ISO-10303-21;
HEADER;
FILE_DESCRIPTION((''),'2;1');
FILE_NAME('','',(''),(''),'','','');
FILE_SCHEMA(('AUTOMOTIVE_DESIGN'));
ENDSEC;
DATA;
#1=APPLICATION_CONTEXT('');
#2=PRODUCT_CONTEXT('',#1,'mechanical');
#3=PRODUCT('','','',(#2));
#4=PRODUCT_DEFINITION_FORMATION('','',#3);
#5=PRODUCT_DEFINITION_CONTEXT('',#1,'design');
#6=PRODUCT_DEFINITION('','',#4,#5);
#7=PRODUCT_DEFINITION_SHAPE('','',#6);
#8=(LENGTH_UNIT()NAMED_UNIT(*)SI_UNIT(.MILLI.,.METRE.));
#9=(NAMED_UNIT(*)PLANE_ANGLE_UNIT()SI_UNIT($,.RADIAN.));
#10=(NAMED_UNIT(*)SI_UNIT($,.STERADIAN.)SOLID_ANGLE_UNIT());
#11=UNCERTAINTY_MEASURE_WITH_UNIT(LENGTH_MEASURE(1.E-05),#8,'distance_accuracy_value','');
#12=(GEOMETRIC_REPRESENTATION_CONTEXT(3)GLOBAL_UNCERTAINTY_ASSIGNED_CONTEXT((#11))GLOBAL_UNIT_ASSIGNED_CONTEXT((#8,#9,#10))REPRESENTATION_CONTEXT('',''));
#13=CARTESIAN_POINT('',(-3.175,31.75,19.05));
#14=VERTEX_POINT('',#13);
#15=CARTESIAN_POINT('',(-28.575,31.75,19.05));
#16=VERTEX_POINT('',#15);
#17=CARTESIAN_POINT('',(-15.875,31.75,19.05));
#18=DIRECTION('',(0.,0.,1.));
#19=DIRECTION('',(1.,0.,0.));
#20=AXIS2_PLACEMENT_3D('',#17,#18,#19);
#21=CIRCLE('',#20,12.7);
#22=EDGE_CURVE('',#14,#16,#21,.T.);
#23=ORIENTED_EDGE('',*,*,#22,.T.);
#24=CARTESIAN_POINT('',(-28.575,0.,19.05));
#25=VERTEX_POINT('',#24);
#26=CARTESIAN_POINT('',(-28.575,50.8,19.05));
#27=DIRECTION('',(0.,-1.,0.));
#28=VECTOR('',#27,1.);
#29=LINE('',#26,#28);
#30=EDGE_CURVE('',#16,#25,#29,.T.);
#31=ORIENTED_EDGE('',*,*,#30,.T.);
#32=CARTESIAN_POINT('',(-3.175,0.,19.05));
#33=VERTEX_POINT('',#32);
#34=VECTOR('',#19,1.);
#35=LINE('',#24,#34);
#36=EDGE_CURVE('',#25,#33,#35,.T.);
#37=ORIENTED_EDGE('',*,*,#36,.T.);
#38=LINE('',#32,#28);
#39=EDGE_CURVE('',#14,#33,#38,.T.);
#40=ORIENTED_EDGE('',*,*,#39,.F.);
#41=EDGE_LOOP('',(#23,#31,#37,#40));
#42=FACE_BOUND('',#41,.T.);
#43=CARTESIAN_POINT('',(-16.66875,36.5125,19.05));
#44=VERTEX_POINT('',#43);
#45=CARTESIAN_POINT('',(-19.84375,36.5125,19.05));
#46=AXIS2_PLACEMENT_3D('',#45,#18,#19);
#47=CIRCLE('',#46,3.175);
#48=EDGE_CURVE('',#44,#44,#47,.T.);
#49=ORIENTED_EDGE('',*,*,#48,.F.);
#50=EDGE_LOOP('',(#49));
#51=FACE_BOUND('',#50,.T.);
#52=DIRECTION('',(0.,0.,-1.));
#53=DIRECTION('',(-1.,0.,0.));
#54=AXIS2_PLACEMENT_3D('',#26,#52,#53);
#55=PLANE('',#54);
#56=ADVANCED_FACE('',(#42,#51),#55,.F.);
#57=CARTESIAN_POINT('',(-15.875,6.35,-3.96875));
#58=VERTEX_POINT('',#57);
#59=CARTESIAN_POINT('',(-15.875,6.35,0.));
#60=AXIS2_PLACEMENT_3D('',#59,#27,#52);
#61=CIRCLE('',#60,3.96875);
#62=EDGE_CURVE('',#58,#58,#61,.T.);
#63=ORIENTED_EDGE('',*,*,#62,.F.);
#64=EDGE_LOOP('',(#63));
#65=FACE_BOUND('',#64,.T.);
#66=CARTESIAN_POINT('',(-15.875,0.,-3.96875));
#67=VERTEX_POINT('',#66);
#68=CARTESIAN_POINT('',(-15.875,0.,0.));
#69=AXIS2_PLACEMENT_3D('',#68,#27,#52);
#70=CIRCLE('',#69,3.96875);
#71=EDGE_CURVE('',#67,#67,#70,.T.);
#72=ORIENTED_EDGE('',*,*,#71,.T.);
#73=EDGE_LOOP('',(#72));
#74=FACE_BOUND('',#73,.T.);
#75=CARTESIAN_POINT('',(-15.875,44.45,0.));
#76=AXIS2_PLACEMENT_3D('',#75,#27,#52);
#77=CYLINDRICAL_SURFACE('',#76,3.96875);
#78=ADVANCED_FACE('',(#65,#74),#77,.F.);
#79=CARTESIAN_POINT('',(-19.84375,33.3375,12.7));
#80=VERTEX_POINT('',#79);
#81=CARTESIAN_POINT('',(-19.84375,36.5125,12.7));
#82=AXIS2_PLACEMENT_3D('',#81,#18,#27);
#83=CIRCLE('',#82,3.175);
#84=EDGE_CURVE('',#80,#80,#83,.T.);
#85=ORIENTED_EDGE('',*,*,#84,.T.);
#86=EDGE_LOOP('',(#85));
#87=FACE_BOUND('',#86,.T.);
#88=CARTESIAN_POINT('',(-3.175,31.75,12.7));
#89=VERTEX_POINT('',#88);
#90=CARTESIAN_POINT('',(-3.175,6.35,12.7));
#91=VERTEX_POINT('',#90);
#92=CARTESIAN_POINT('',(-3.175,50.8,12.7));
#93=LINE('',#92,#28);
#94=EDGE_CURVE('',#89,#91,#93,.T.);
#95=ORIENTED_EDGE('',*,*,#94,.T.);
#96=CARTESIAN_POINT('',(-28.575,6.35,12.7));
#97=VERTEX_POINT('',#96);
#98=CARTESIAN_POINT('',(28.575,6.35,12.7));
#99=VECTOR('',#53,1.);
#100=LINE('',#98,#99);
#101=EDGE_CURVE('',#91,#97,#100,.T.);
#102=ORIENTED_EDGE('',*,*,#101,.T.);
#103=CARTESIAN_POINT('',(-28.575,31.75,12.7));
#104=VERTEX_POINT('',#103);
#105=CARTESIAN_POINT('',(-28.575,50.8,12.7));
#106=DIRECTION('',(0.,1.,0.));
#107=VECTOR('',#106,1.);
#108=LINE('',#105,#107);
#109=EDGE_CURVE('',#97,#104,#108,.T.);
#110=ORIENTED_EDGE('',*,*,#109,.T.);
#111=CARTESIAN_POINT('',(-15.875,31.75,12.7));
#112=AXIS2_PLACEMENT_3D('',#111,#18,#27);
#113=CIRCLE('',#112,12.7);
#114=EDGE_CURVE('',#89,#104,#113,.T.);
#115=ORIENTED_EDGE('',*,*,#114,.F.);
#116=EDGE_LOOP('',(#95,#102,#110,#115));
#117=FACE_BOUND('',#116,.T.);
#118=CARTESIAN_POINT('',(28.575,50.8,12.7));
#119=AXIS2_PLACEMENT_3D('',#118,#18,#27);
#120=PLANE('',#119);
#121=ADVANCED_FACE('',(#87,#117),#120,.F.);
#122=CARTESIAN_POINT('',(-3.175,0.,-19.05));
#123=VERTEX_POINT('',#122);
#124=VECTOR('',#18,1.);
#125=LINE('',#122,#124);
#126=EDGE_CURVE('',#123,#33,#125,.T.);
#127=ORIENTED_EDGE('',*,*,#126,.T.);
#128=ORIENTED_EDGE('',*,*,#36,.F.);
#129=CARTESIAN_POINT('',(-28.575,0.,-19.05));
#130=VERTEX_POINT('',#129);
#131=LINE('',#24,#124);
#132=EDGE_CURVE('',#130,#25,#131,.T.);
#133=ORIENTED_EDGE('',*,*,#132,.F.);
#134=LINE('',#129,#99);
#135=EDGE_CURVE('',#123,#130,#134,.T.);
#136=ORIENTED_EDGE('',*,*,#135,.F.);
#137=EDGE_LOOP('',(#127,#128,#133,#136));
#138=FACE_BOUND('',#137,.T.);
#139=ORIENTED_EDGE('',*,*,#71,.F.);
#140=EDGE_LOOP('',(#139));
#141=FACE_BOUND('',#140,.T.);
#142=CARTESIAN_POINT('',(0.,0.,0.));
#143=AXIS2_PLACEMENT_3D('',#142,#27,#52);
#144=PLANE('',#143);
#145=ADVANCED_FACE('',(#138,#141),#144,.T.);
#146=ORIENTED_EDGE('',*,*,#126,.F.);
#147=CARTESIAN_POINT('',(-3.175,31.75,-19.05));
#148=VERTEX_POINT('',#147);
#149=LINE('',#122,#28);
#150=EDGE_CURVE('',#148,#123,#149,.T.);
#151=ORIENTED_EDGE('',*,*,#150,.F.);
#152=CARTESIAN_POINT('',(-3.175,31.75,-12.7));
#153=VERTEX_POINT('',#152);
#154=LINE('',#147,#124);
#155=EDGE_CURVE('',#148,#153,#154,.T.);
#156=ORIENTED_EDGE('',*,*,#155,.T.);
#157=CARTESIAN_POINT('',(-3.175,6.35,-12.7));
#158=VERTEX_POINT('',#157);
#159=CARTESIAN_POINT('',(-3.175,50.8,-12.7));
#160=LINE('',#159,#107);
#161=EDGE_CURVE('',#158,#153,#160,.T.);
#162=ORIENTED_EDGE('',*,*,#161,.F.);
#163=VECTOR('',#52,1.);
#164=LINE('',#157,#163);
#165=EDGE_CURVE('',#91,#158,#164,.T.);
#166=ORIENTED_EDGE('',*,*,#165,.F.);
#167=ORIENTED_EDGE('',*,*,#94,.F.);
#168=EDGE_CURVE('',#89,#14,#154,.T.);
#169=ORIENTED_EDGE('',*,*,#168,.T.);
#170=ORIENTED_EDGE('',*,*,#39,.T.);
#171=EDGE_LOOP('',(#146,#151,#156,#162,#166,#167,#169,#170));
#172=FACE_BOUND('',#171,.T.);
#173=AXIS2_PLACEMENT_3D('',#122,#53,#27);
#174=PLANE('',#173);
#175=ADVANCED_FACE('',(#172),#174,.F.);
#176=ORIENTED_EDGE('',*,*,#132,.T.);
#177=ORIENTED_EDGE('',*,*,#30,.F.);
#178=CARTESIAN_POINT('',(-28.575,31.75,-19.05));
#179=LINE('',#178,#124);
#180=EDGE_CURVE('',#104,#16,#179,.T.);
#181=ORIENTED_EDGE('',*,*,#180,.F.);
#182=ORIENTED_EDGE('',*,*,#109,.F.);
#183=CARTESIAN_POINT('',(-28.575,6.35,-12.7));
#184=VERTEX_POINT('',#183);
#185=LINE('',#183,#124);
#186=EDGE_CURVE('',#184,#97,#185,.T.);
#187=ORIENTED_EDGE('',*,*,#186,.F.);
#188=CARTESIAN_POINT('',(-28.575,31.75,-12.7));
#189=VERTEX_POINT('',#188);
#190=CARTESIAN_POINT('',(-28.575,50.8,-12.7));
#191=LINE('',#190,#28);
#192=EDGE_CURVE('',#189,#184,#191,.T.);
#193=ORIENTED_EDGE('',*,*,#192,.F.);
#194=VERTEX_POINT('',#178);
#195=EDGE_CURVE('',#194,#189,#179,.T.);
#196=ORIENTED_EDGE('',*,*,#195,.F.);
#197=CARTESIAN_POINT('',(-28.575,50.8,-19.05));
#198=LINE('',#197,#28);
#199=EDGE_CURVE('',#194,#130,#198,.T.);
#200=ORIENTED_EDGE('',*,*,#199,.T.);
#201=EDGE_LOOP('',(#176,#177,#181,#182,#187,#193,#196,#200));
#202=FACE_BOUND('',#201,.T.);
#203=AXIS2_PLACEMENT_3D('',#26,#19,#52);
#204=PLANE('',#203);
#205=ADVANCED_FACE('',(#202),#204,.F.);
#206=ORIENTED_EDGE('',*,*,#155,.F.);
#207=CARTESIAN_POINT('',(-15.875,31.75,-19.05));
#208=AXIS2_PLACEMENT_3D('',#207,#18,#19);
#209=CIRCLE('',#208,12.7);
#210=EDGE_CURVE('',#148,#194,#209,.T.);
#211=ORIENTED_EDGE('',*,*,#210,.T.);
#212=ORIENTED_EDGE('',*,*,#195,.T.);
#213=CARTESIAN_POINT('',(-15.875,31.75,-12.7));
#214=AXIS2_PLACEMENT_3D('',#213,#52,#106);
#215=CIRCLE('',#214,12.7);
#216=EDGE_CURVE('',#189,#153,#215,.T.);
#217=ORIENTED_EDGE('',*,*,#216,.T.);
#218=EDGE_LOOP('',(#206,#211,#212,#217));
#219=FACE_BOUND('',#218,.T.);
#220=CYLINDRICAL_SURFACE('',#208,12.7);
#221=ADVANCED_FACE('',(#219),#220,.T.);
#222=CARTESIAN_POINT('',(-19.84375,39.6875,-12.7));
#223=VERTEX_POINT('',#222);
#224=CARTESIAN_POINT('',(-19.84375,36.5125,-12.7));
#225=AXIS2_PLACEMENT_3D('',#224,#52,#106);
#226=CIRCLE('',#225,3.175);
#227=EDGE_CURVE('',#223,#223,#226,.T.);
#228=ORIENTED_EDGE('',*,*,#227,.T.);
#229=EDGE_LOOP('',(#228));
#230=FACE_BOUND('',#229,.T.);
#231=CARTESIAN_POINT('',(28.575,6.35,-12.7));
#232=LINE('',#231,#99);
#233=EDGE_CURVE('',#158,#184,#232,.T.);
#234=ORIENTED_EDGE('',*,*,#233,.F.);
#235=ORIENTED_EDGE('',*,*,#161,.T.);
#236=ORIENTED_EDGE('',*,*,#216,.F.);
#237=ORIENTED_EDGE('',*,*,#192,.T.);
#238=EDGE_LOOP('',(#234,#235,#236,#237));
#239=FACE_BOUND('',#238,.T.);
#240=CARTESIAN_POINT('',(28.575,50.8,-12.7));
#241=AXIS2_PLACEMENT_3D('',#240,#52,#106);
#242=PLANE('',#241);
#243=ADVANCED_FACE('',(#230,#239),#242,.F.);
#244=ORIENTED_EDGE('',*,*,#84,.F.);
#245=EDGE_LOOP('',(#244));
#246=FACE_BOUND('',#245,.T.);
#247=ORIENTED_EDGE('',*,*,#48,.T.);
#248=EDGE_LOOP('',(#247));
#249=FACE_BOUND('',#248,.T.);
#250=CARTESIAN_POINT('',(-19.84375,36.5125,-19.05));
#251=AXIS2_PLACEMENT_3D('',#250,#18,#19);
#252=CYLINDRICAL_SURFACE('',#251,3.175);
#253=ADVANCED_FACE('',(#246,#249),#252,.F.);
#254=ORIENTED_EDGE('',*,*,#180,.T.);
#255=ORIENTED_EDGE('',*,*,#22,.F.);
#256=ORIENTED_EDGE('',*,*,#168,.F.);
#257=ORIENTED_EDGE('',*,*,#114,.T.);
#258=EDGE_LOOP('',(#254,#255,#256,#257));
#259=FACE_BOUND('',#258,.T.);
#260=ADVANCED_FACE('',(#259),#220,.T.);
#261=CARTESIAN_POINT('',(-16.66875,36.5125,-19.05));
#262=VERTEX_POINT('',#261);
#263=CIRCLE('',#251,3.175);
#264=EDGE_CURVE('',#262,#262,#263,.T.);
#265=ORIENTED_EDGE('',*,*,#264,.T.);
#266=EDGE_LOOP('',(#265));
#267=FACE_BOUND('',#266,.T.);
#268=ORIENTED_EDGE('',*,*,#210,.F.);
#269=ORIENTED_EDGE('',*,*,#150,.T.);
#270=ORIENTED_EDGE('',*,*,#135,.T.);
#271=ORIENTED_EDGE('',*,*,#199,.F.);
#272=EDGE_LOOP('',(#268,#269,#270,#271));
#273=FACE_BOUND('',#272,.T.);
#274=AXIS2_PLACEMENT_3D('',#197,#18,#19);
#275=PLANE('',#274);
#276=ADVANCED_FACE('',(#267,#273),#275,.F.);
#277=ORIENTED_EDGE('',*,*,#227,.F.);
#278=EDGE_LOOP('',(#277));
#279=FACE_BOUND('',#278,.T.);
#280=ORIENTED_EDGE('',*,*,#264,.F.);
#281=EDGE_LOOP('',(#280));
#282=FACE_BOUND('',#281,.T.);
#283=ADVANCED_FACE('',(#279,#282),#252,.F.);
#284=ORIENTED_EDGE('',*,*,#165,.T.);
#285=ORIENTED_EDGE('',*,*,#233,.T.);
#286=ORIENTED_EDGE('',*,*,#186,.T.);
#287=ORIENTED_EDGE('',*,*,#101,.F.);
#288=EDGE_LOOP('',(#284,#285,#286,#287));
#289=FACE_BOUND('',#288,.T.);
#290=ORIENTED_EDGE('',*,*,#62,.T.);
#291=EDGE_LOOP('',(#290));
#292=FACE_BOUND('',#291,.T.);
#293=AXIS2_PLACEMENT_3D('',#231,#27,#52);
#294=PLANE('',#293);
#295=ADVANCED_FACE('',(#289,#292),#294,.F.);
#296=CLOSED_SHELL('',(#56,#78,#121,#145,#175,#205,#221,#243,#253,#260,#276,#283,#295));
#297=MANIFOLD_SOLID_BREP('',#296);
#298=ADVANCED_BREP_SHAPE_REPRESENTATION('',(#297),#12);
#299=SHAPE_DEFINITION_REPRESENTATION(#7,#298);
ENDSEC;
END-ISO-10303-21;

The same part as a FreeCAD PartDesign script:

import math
import FreeCAD as App
import Part
import Sketcher

V = App.Vector
Q = App.Units.Quantity

doc = App.newDocument("Part")
body = doc.addObject("PartDesign::Body", "Body")

# Sketch on XZ plane
sketch1 = body.newObject("Sketcher::SketchObject", "Sketch")
sketch1.AttachmentSupport = (doc.getObject("XZ_Plane"), [""])
sketch1.MapMode = "FlatFace"
sketch1.addGeometry([
    Part.LineSegment(V(-29, -19, 0), V(-29, 19, 0)),
    Part.LineSegment(V(-29, 19, 0), V(29, 19, 0)),
    Part.LineSegment(V(29, 19, 0), V(29, -19, 0)),
    Part.LineSegment(V(29, -19, 0), V(-29, -19, 0)),
], False)
sketch1.addConstraint([
    Sketcher.Constraint("Coincident", 0, 2, 1, 1),
    Sketcher.Constraint("Coincident", 1, 2, 2, 1),
    Sketcher.Constraint("Coincident", 2, 2, 3, 1),
    Sketcher.Constraint("Coincident", 3, 2, 0, 1),
    Sketcher.Constraint("Vertical", 0),
    Sketcher.Constraint("Horizontal", 1),
    Sketcher.Constraint("Vertical", 2),
    Sketcher.Constraint("Horizontal", 3),
    Sketcher.Constraint("Symmetric", 0, 2, 2, 2, -1, 1),
    Sketcher.Constraint("DistanceY", 0, 1, 0, 2, Q("1.5 in")),
    Sketcher.Constraint("DistanceX", 1, 1, 1, 2, Q("2.25 in")),
])
pad1 = body.newObject("PartDesign::Pad", "Pad")
pad1.Profile = sketch1
pad1.Length = Q("2 in")
pad1.Reversed = True

# Sketch on YZ plane
sketch2 = body.newObject("Sketcher::SketchObject", "Sketch001")
sketch2.AttachmentSupport = (doc.getObject("YZ_Plane"), [""])
sketch2.MapMode = "FlatFace"
sketch2.AttachmentOffset = App.Placement(V(0, 0, -1.125 * 25.4), App.Rotation())
sketch2.addGeometry([
    Part.LineSegment(V(51, -13, 0), V(6, -13, 0)),
    Part.LineSegment(V(6, -13, 0), V(6, 13, 0)),
    Part.LineSegment(V(6, 13, 0), V(51, 13, 0)),
    Part.LineSegment(V(51, 13, 0), V(51, -13, 0)),
], False)
sketch2.addConstraint([
    Sketcher.Constraint("Coincident", 0, 2, 1, 1),
    Sketcher.Constraint("Coincident", 1, 2, 2, 1),
    Sketcher.Constraint("Coincident", 2, 2, 3, 1),
    Sketcher.Constraint("Coincident", 3, 2, 0, 1),
    Sketcher.Constraint("Horizontal", 0),
    Sketcher.Constraint("Vertical", 1),
    Sketcher.Constraint("Horizontal", 2),
    Sketcher.Constraint("Vertical", 3),
    Sketcher.Constraint("DistanceY", 1, 1, 1, 2, Q("1 in")),
    Sketcher.Constraint("DistanceX", -1, 1, 2, 2, Q("2 in")),
    Sketcher.Constraint("DistanceX", 0, 2, 0, 1, Q("1.75 in")),
    Sketcher.Constraint("DistanceY", 0, 2, -1, 1, Q("0.5 in")),
])
pocket1 = body.newObject("PartDesign::Pocket", "Pocket")
pocket1.Profile = sketch2
pocket1.Type = "ThroughAll"
pocket1.Reversed = True

# Sketch on XY plane
sketch3 = body.newObject("Sketcher::SketchObject", "Sketch002")
sketch3.AttachmentSupport = (doc.getObject("XY_Plane"), [""])
sketch3.MapMode = "FlatFace"
sketch3.AttachmentOffset = App.Placement(V(0, 0, 0.75 * 25.4), App.Rotation())
sketch3.addGeometry([
    Part.LineSegment(V(-3.2, 0, 0), V(28.6, 0, 0)),  # 0
    Part.LineSegment(V(28.6, 0, 0), V(28.6, 50.8, 0)),  # 1
    Part.LineSegment(V(28.6, 50.8, 0), V(-28.6, 50.8, 0)),  # 2
    Part.LineSegment(V(-28.6, 50.8, 0), V(-28.6, 31.8, 0)),  # 3
    Part.ArcOfCircle(Part.Circle(V(-15.9, 31.8, 0), V(0, 0, 1), 12.7), math.radians(0), math.radians(180)),  # 4
    Part.LineSegment(V(-3.2, 31.8, 0), V(-3.2, 0, 0)),  # 5
    Part.Circle(V(-19.8, 36.5, 0), V(0, 0, 1), 3.2),  # 6
], False)
sketch3.addConstraint([
    Sketcher.Constraint("Coincident", 0, 2, 1, 1),
    Sketcher.Constraint("Coincident", 1, 2, 2, 1),
    Sketcher.Constraint("Coincident", 2, 2, 3, 1),
    Sketcher.Constraint("Tangent", 3, 2, 4, 2),
    Sketcher.Constraint("Tangent", 4, 1, 5, 1),
    Sketcher.Constraint("Coincident", 5, 2, 0, 1),
    Sketcher.Constraint("Horizontal", 0),
    Sketcher.Constraint("Vertical", 1),
    Sketcher.Constraint("Horizontal", 2),
    Sketcher.Constraint("Vertical", 3),
    Sketcher.Constraint("Vertical", 5),
    Sketcher.Constraint("PointOnObject", 0, 2, -1),
    Sketcher.Constraint("Equal", 0, 5),
    Sketcher.Constraint("Radius", 4, Q("0.5 in")),
    Sketcher.Constraint("Diameter", 6, Q("0.25 in")),
    Sketcher.Constraint("DistanceY", 1, 1, 1, 2, Q("2 in")),
    Sketcher.Constraint("DistanceX", 0, 1, 0, 2, Q("1.25 in")),
    Sketcher.Constraint("DistanceX", 4, 3, -1, 1, Q("0.625 in")),
    Sketcher.Constraint("DistanceX", 6, 3, -1, 1, Q("0.78125 in")),
    Sketcher.Constraint("DistanceY", -1, 1, 6, 3, Q("1.4375 in")),
])
pocket2 = body.newObject("PartDesign::Pocket", "Pocket001")
pocket2.Profile = sketch3
pocket2.Type = "ThroughAll"

# Sketch on XZ plane
sketch4 = body.newObject("Sketcher::SketchObject", "Sketch003")
sketch4.AttachmentSupport = (doc.getObject("XZ_Plane"), [""])
sketch4.MapMode = "FlatFace"
sketch4.addGeometry(Part.Circle(V(-15.9, 0, 0), V(0, 0, 1), 4), False)
sketch4.addConstraint([
    Sketcher.Constraint("PointOnObject", 0, 3, -1),
    Sketcher.Constraint("Diameter", 0, Q("0.3125 in")),
    Sketcher.Constraint("DistanceX", 0, 3, -1, 1, Q("0.625 in")),
])
pocket3 = body.newObject("PartDesign::Pocket", "Pocket002")
pocket3.Profile = sketch4
pocket3.Type = "ThroughAll"

doc.recompute()
